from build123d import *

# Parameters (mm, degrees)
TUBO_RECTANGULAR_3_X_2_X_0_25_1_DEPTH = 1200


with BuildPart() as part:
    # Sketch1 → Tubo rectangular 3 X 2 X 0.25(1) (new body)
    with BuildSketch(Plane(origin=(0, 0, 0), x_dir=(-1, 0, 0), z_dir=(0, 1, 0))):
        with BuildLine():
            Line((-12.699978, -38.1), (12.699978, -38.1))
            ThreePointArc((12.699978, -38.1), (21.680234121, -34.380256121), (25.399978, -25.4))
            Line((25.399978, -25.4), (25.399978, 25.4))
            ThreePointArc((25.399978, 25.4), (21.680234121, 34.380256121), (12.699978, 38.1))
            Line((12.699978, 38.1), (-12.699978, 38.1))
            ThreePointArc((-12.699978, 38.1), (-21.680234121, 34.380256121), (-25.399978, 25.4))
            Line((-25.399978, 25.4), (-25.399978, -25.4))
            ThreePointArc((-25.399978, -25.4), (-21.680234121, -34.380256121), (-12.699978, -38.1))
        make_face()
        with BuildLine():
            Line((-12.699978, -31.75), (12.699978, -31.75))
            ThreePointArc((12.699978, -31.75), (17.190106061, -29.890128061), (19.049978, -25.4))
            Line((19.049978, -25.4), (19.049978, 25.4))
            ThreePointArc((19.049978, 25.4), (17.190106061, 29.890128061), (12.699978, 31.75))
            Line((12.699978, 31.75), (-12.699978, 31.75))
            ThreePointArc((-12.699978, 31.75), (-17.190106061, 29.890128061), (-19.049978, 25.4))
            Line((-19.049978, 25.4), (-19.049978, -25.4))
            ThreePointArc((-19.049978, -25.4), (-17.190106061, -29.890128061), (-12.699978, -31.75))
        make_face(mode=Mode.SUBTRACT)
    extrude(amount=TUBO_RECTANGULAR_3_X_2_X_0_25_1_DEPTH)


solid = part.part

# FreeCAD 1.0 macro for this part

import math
import FreeCAD as App
import Part
import Sketcher
from FreeCAD import Vector
Q = App.Units.Quantity

doc = App.newDocument("Part")
params = doc.addObject("Spreadsheet::Sheet", "Params")
for row, (alias, value) in enumerate([
    ("sketch1_radius", "0.5 in"),
    ("sketch1_height", "2 in"),
    ("sketch1_radius2", "0.25 in"),
    ("pad1_length", "1200 mm"),
], start=1):
    params.set(f"A{row}", alias)
    params.set(f"B{row}", "=" + value)
    params.setAlias(f"B{row}", alias)

body = doc.addObject("PartDesign::Body", "Body")

# Sketch on XZ plane
sketch1 = doc.addObject("Sketcher::SketchObject", "Sketch")
body.addObject(sketch1)
sketch1.AttachmentSupport = (doc.XZ_Plane, [""])
sketch1.MapMode = "FlatFace"
sketch1.addGeometry([
    Part.LineSegment(Vector(13, -38, 0), Vector(-13, -38, 0)),  # 0
    Part.ArcOfCircle(Part.Circle(Vector(-13, -25, 0), Vector(0, 0, 1), 13), math.radians(180), math.radians(270)),  # 1
    Part.LineSegment(Vector(-25, -25, 0), Vector(-25, 25, 0)),  # 2
    Part.ArcOfCircle(Part.Circle(Vector(-13, 25, 0), Vector(0, 0, 1), 13), math.radians(90), math.radians(180)),  # 3
    Part.LineSegment(Vector(-13, 38, 0), Vector(13, 38, 0)),  # 4
    Part.ArcOfCircle(Part.Circle(Vector(13, 25, 0), Vector(0, 0, 1), 13), math.radians(0), math.radians(90)),  # 5
    Part.LineSegment(Vector(25, 25, 0), Vector(25, -25, 0)),  # 6
    Part.ArcOfCircle(Part.Circle(Vector(13, -25, 0), Vector(0, 0, 1), 13), math.radians(-90), math.radians(0)),  # 7
    Part.LineSegment(Vector(-13, -32, 0), Vector(13, -32, 0)),  # 8
    Part.ArcOfCircle(Part.Circle(Vector(13, -25, 0), Vector(0, 0, 1), 6), math.radians(-90), math.radians(0)),  # 9
    Part.LineSegment(Vector(19, -25, 0), Vector(19, 25, 0)),  # 10
    Part.ArcOfCircle(Part.Circle(Vector(13, 25, 0), Vector(0, 0, 1), 6), math.radians(0), math.radians(90)),  # 11
    Part.LineSegment(Vector(13, 32, 0), Vector(-13, 32, 0)),  # 12
    Part.ArcOfCircle(Part.Circle(Vector(-13, 25, 0), Vector(0, 0, 1), 6), math.radians(90), math.radians(180)),  # 13
    Part.LineSegment(Vector(-19, 25, 0), Vector(-19, -25, 0)),  # 14
    Part.ArcOfCircle(Part.Circle(Vector(-13, -25, 0), Vector(0, 0, 1), 6), math.radians(180), math.radians(270)),  # 15
], False)
sketch1.addConstraint([
    Sketcher.Constraint("Tangent", 0, 2, 1, 2),
    Sketcher.Constraint("Tangent", 1, 1, 2, 1),
    Sketcher.Constraint("Tangent", 2, 2, 3, 2),
    Sketcher.Constraint("Tangent", 3, 1, 4, 1),
    Sketcher.Constraint("Tangent", 4, 2, 5, 2),
    Sketcher.Constraint("Tangent", 5, 1, 6, 1),
    Sketcher.Constraint("Tangent", 6, 2, 7, 2),
    Sketcher.Constraint("Tangent", 7, 1, 0, 1),
    Sketcher.Constraint("Tangent", 8, 2, 9, 1),
    Sketcher.Constraint("Tangent", 9, 2, 10, 1),
    Sketcher.Constraint("Tangent", 10, 2, 11, 1),
    Sketcher.Constraint("Tangent", 11, 2, 12, 1),
    Sketcher.Constraint("Tangent", 12, 2, 13, 1),
    Sketcher.Constraint("Tangent", 13, 2, 14, 1),
    Sketcher.Constraint("Tangent", 14, 2, 15, 1),
    Sketcher.Constraint("Tangent", 15, 2, 8, 1),
    Sketcher.Constraint("Horizontal", 0),
    Sketcher.Constraint("Vertical", 2),
    Sketcher.Constraint("Horizontal", 4),
    Sketcher.Constraint("Vertical", 6),
    Sketcher.Constraint("Horizontal", 8),
    Sketcher.Constraint("Vertical", 10),
    Sketcher.Constraint("Horizontal", 12),
    Sketcher.Constraint("Vertical", 14),
    Sketcher.Constraint("Coincident", 9, 3, 7, 3),
    Sketcher.Constraint("Coincident", 11, 3, 5, 3),
    Sketcher.Constraint("Coincident", 13, 3, 3, 3),
    Sketcher.Constraint("Equal", 1, 3),
    Sketcher.Constraint("Equal", 3, 5),
    Sketcher.Constraint("Equal", 5, 7),
    Sketcher.Constraint("Equal", 13, 15),
    Sketcher.Constraint("Symmetric", 1, 3, 5, 3, -1, 1),
    Sketcher.Constraint("Radius", 1, Q("0.5 in")),
    Sketcher.Constraint("DistanceY", 2, 1, 2, 2, Q("2 in")),
    Sketcher.Constraint("Radius", 9, Q("0.25 in")),
    Sketcher.Constraint("DistanceX", 0, 2, 0, 1, Q("25.399956 mm")),
])
sketch1.setExpression("Constraints[32]", "Params.sketch1_radius")
sketch1.setExpression("Constraints[33]", "Params.sketch1_height")
sketch1.setExpression("Constraints[34]", "Params.sketch1_radius2")
pad1 = doc.addObject("PartDesign::Pad", "Pad")
body.addObject(pad1)
pad1.Profile = sketch1
pad1.setExpression("Length", "Params.pad1_length")
pad1.Reversed = True

doc.recompute()
